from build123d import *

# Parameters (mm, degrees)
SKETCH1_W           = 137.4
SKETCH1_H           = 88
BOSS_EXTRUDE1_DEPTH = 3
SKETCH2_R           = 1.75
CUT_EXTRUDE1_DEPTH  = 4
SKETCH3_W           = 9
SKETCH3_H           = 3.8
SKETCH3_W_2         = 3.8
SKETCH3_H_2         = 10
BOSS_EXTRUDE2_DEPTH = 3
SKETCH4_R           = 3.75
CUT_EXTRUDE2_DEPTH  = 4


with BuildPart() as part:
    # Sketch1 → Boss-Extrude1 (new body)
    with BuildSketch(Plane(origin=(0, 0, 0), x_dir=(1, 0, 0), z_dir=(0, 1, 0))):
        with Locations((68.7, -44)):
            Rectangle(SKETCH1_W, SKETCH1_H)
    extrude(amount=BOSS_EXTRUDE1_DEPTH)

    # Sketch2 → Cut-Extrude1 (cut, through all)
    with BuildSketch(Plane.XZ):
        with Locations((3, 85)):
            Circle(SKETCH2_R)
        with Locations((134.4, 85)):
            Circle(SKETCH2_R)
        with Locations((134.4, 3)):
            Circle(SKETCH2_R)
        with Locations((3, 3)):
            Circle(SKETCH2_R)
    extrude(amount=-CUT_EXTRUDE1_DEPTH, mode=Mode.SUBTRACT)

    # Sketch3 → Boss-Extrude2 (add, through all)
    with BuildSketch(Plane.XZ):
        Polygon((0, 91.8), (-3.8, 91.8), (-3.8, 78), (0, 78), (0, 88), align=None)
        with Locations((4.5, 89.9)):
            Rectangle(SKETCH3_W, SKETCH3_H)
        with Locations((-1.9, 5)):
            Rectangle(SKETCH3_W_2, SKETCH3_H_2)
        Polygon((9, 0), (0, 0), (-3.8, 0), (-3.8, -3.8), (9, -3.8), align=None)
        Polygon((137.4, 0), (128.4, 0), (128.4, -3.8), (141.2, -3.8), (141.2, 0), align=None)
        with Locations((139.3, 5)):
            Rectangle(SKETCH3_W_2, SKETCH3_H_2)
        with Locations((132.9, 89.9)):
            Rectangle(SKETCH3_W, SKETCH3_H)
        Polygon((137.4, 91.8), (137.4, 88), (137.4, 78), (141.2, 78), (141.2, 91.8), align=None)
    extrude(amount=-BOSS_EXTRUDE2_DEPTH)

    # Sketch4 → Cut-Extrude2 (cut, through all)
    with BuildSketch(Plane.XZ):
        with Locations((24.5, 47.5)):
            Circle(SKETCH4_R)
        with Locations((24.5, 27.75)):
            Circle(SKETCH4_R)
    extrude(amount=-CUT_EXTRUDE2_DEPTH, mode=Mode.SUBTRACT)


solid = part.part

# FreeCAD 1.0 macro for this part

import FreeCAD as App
import Part
import Sketcher

V = App.Vector

doc = App.newDocument("Part")
body = doc.addObject("PartDesign::Body", "Body")

sketch1 = doc.addObject("Sketcher::SketchObject", "Sketch")
body.addObject(sketch1)
sketch1.AttachmentSupport = (doc.XZ_Plane, [""])
sketch1.MapMode = "FlatFace"
sketch1.addGeometry(Part.LineSegment(V(0, 0, 0), V(0, 88, 0)), False)
sketch1.addGeometry(Part.LineSegment(V(0, 88, 0), V(137.4, 88, 0)), False)
sketch1.addGeometry(Part.LineSegment(V(137.4, 88, 0), V(137.4, 0, 0)), False)
sketch1.addGeometry(Part.LineSegment(V(137.4, 0, 0), V(0, 0, 0)), False)
sketch1.addConstraint(Sketcher.Constraint("Coincident", 0, 2, 1, 1))
sketch1.addConstraint(Sketcher.Constraint("Coincident", 1, 2, 2, 1))
sketch1.addConstraint(Sketcher.Constraint("Coincident", 2, 2, 3, 1))
sketch1.addConstraint(Sketcher.Constraint("Coincident", 3, 2, 0, 1))
sketch1.addConstraint(Sketcher.Constraint("Vertical", 0))
sketch1.addConstraint(Sketcher.Constraint("Horizontal", 1))
sketch1.addConstraint(Sketcher.Constraint("Vertical", 2))
sketch1.addConstraint(Sketcher.Constraint("Horizontal", 3))
sketch1.addConstraint(Sketcher.Constraint("Coincident", 3, 2, -1, 1))
sketch1.addConstraint(Sketcher.Constraint("DistanceY", 0, 1, 0, 2, 88.0))
sketch1.addConstraint(Sketcher.Constraint("DistanceX", 1, 1, 1, 2, 137.4))
pad1 = doc.addObject("PartDesign::Pad", "Pad")
body.addObject(pad1)
pad1.Profile = sketch1
pad1.Length = 3
pad1.Reversed = True

sketch2 = doc.addObject("Sketcher::SketchObject", "Sketch001")
body.addObject(sketch2)
sketch2.AttachmentSupport = (doc.XZ_Plane, [""])
sketch2.MapMode = "FlatFace"
sketch2.addGeometry(Part.Circle(V(3, 85, 0), V(0, 0, 1), 1.75), False)
sketch2.addGeometry(Part.Circle(V(134.4, 85, 0), V(0, 0, 1), 1.75), False)
sketch2.addGeometry(Part.Circle(V(134.4, 3, 0), V(0, 0, 1), 1.75), False)
sketch2.addGeometry(Part.Circle(V(3, 3, 0), V(0, 0, 1), 1.75), False)
sketch2.addConstraint(Sketcher.Constraint("Equal", 0, 1))
sketch2.addConstraint(Sketcher.Constraint("Equal", 1, 2))
sketch2.addConstraint(Sketcher.Constraint("Equal", 2, 3))
sketch2.addConstraint(Sketcher.Constraint("Horizontal", 0, 3, 1, 3))
sketch2.addConstraint(Sketcher.Constraint("Horizontal", 2, 3, 3, 3))
sketch2.addConstraint(Sketcher.Constraint("Vertical", 1, 3, 2, 3))
sketch2.addConstraint(Sketcher.Constraint("Vertical", 0, 3, 3, 3))
sketch2.addConstraint(Sketcher.Constraint("Diameter", 0, 3.5))
sketch2.addConstraint(Sketcher.Constraint("DistanceX", -1, 1, 0, 3, 3.0))
sketch2.addConstraint(Sketcher.Constraint("DistanceY", -1, 1, 0, 3, 85.0))
sketch2.addConstraint(Sketcher.Constraint("DistanceY", -1, 1, 2, 3, 3.0))
sketch2.addConstraint(Sketcher.Constraint("DistanceX", -1, 1, 1, 3, 134.4))
pocket1 = doc.addObject("PartDesign::Pocket", "Pocket")
body.addObject(pocket1)
pocket1.Profile = sketch2
pocket1.Type = "ThroughAll"

sketch3 = doc.addObject("Sketcher::SketchObject", "Sketch002")
body.addObject(sketch3)
sketch3.AttachmentSupport = (doc.XZ_Plane, [""])
sketch3.MapMode = "FlatFace"
sketch3.addGeometry(Part.LineSegment(V(-3.8, 91.8, 0), V(-3.8, 78, 0)), False)
sketch3.addGeometry(Part.LineSegment(V(-3.8, 78, 0), V(0, 78, 0)), False)
sketch3.addGeometry(Part.LineSegment(V(0, 78, 0), V(0, 88, 0)), False)
sketch3.addGeometry(Part.LineSegment(V(0, 88, 0), V(9, 88, 0)), False)
sketch3.addGeometry(Part.LineSegment(V(9, 88, 0), V(9, 91.8, 0)), False)
sketch3.addGeometry(Part.LineSegment(V(9, 91.8, 0), V(-3.8, 91.8, 0)), False)
sketch3.addGeometry(Part.LineSegment(V(-3.8, 10, 0), V(-3.8, -3.8, 0)), False)
sketch3.addGeometry(Part.LineSegment(V(-3.8, -3.8, 0), V(9, -3.8, 0)), False)
sketch3.addGeometry(Part.LineSegment(V(9, -3.8, 0), V(9, 0, 0)), False)
sketch3.addGeometry(Part.LineSegment(V(9, 0, 0), V(0, 0, 0)), False)
sketch3.addGeometry(Part.LineSegment(V(0, 0, 0), V(0, 10, 0)), False)
sketch3.addGeometry(Part.LineSegment(V(0, 10, 0), V(-3.8, 10, 0)), False)
sketch3.addGeometry(Part.LineSegment(V(128.4, 0, 0), V(128.4, -3.8, 0)), False)
sketch3.addGeometry(Part.LineSegment(V(128.4, -3.8, 0), V(141.2, -3.8, 0)), False)
sketch3.addGeometry(Part.LineSegment(V(141.2, -3.8, 0), V(141.2, 10, 0)), False)
sketch3.addGeometry(Part.LineSegment(V(141.2, 10, 0), V(137.4, 10, 0)), False)
sketch3.addGeometry(Part.LineSegment(V(137.4, 10, 0), V(137.4, 0, 0)), False)
sketch3.addGeometry(Part.LineSegment(V(137.4, 0, 0), V(128.4, 0, 0)), False)
sketch3.addGeometry(Part.LineSegment(V(128.4, 91.8, 0), V(128.4, 88, 0)), False)
sketch3.addGeometry(Part.LineSegment(V(128.4, 88, 0), V(137.4, 88, 0)), False)
sketch3.addGeometry(Part.LineSegment(V(137.4, 88, 0), V(137.4, 78, 0)), False)
sketch3.addGeometry(Part.LineSegment(V(137.4, 78, 0), V(141.2, 78, 0)), False)
sketch3.addGeometry(Part.LineSegment(V(141.2, 78, 0), V(141.2, 91.8, 0)), False)
sketch3.addGeometry(Part.LineSegment(V(141.2, 91.8, 0), V(128.4, 91.8, 0)), False)
sketch3.addConstraint(Sketcher.Constraint("Coincident", 0, 2, 1, 1))
sketch3.addConstraint(Sketcher.Constraint("Coincident", 1, 2, 2, 1))
sketch3.addConstraint(Sketcher.Constraint("Coincident", 2, 2, 3, 1))
sketch3.addConstraint(Sketcher.Constraint("Coincident", 3, 2, 4, 1))
sketch3.addConstraint(Sketcher.Constraint("Coincident", 4, 2, 5, 1))
sketch3.addConstraint(Sketcher.Constraint("Coincident", 5, 2, 0, 1))
sketch3.addConstraint(Sketcher.Constraint("Coincident", 6, 2, 7, 1))
sketch3.addConstraint(Sketcher.Constraint("Coincident", 7, 2, 8, 1))
sketch3.addConstraint(Sketcher.Constraint("Coincident", 8, 2, 9, 1))
sketch3.addConstraint(Sketcher.Constraint("Coincident", 9, 2, 10, 1))
sketch3.addConstraint(Sketcher.Constraint("Coincident", 10, 2, 11, 1))
sketch3.addConstraint(Sketcher.Constraint("Coincident", 11, 2, 6, 1))
sketch3.addConstraint(Sketcher.Constraint("Coincident", 12, 2, 13, 1))
sketch3.addConstraint(Sketcher.Constraint("Coincident", 13, 2, 14, 1))
sketch3.addConstraint(Sketcher.Constraint("Coincident", 14, 2, 15, 1))
sketch3.addConstraint(Sketcher.Constraint("Coincident", 15, 2, 16, 1))
sketch3.addConstraint(Sketcher.Constraint("Coincident", 16, 2, 17, 1))
sketch3.addConstraint(Sketcher.Constraint("Coincident", 17, 2, 12, 1))
sketch3.addConstraint(Sketcher.Constraint("Coincident", 18, 2, 19, 1))
sketch3.addConstraint(Sketcher.Constraint("Coincident", 19, 2, 20, 1))
sketch3.addConstraint(Sketcher.Constraint("Coincident", 20, 2, 21, 1))
sketch3.addConstraint(Sketcher.Constraint("Coincident", 21, 2, 22, 1))
sketch3.addConstraint(Sketcher.Constraint("Coincident", 22, 2, 23, 1))
sketch3.addConstraint(Sketcher.Constraint("Coincident", 23, 2, 18, 1))
sketch3.addConstraint(Sketcher.Constraint("Vertical", 0))
sketch3.addConstraint(Sketcher.Constraint("Horizontal", 1))
sketch3.addConstraint(Sketcher.Constraint("Vertical", 2))
sketch3.addConstraint(Sketcher.Constraint("Horizontal", 3))
sketch3.addConstraint(Sketcher.Constraint("Vertical", 4))
sketch3.addConstraint(Sketcher.Constraint("Horizontal", 5))
sketch3.addConstraint(Sketcher.Constraint("Vertical", 6))
sketch3.addConstraint(Sketcher.Constraint("Horizontal", 7))
sketch3.addConstraint(Sketcher.Constraint("Vertical", 8))
sketch3.addConstraint(Sketcher.Constraint("Horizontal", 9))
sketch3.addConstraint(Sketcher.Constraint("Vertical", 10))
sketch3.addConstraint(Sketcher.Constraint("Horizontal", 11))
sketch3.addConstraint(Sketcher.Constraint("Vertical", 12))
sketch3.addConstraint(Sketcher.Constraint("Horizontal", 13))
sketch3.addConstraint(Sketcher.Constraint("Vertical", 14))
sketch3.addConstraint(Sketcher.Constraint("Horizontal", 15))
sketch3.addConstraint(Sketcher.Constraint("Vertical", 16))
sketch3.addConstraint(Sketcher.Constraint("Horizontal", 17))
sketch3.addConstraint(Sketcher.Constraint("Vertical", 18))
sketch3.addConstraint(Sketcher.Constraint("Horizontal", 19))
sketch3.addConstraint(Sketcher.Constraint("Vertical", 20))
sketch3.addConstraint(Sketcher.Constraint("Horizontal", 21))
sketch3.addConstraint(Sketcher.Constraint("Vertical", 22))
sketch3.addConstraint(Sketcher.Constraint("Horizontal", 23))
sketch3.addConstraint(Sketcher.Constraint("Coincident", 9, 2, -1, 1))
sketch3.addConstraint(Sketcher.Constraint("PointOnObject", 1, 2, -2))
sketch3.addConstraint(Sketcher.Constraint("PointOnObject", 16, 2, -1))
sketch3.addConstraint(Sketcher.Constraint("Horizontal", 7, 2, 12, 2))
sketch3.addConstraint(Sketcher.Constraint("Horizontal", 11, 2, 14, 2))
sketch3.addConstraint(Sketcher.Constraint("Horizontal", 3, 2, 18, 2))
sketch3.addConstraint(Sketcher.Constraint("Horizontal", 1, 2, 20, 2))
sketch3.addConstraint(Sketcher.Constraint("Horizontal", 5, 2, 22, 2))
sketch3.addConstraint(Sketcher.Constraint("Vertical", 5, 2, 6, 2))
sketch3.addConstraint(Sketcher.Constraint("Vertical", 4, 2, 7, 2))
sketch3.addConstraint(Sketcher.Constraint("Vertical", 17, 2, 18, 2))
sketch3.addConstraint(Sketcher.Constraint("Vertical", 16, 2, 19, 2))
sketch3.addConstraint(Sketcher.Constraint("Vertical", 14, 2, 21, 2))
sketch3.addConstraint(Sketcher.Constraint("Equal", 7, 13))
sketch3.addConstraint(Sketcher.Constraint("Equal", 11, 15))
sketch3.addConstraint(Sketcher.Constraint("Equal", 21, 4))
sketch3.addConstraint(Sketcher.Constraint("Equal", 0, 6))
sketch3.addConstraint(Sketcher.Constraint("Equal", 4, 8))
sketch3.addConstraint(Sketcher.Constraint("DistanceX", 3, 1, 3, 2, 9.0))
sketch3.addConstraint(Sketcher.Constraint("DistanceY", 2, 1, 2, 2, 10.0))
sketch3.addConstraint(Sketcher.Constraint("DistanceX", 1, 1, 1, 2, 3.8))
sketch3.addConstraint(Sketcher.Constraint("DistanceY", -1, 1, 0, 2, 78.0))
sketch3.addConstraint(Sketcher.Constraint("DistanceX", -1, 1, 12, 2, 128.4))
pad2 = doc.addObject("PartDesign::Pad", "Pad001")
body.addObject(pad2)
pad2.Profile = sketch3
pad2.Type = "UpToLast"
pad2.Reversed = True

sketch4 = doc.addObject("Sketcher::SketchObject", "Sketch003")
body.addObject(sketch4)
sketch4.AttachmentSupport = (doc.XZ_Plane, [""])
sketch4.MapMode = "FlatFace"
sketch4.addGeometry(Part.Circle(V(24.5, 47.5, 0), V(0, 0, 1), 3.75), False)
sketch4.addGeometry(Part.Circle(V(24.5, 27.75, 0), V(0, 0, 1), 3.75), False)
sketch4.addConstraint(Sketcher.Constraint("Equal", 0, 1))
sketch4.addConstraint(Sketcher.Constraint("Vertical", 0, 3, 1, 3))
sketch4.addConstraint(Sketcher.Constraint("Diameter", 0, 7.5))
sketch4.addConstraint(Sketcher.Constraint("DistanceX", -1, 1, 0, 3, 24.5))
sketch4.addConstraint(Sketcher.Constraint("DistanceY", -1, 1, 0, 3, 47.5))
sketch4.addConstraint(Sketcher.Constraint("DistanceY", -1, 1, 1, 3, 27.75))
pocket2 = doc.addObject("PartDesign::Pocket", "Pocket001")
body.addObject(pocket2)
pocket2.Profile = sketch4
pocket2.Type = "ThroughAll"

doc.recompute()
